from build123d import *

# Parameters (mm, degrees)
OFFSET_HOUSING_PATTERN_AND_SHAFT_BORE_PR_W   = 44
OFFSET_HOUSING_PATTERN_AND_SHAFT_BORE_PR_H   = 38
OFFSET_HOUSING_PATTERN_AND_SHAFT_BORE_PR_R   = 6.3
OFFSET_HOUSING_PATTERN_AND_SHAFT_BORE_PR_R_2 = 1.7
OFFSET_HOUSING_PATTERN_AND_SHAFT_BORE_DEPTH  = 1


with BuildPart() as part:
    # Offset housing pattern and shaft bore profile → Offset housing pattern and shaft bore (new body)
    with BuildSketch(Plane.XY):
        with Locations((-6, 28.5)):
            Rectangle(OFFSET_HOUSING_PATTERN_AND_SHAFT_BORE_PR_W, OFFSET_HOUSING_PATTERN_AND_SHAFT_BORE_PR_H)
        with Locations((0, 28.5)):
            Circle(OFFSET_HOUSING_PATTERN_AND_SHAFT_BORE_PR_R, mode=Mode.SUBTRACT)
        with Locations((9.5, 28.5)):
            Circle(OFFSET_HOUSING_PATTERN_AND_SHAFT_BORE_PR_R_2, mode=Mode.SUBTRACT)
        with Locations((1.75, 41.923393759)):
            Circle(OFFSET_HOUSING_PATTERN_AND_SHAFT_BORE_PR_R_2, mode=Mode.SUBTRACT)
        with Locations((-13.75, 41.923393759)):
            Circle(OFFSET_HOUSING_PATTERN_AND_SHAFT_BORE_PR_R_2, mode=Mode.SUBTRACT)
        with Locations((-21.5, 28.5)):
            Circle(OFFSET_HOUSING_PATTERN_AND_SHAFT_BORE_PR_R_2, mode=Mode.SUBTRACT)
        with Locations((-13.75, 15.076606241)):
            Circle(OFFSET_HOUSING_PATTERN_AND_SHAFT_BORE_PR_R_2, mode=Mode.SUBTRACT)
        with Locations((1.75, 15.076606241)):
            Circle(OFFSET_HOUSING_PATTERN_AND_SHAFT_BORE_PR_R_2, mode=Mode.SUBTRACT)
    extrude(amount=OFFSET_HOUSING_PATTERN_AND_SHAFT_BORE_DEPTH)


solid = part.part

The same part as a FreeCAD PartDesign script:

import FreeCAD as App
import Part
import Sketcher


def add_polygon(sketch, points):
    """Adds a closed chain of lines whose ends are joined by coincident constraints."""
    first, n = sketch.GeometryCount, len(points)
    for a, b in zip(points, points[1:] + points[:1]):
        sketch.addGeometry(Part.LineSegment(App.Vector(*a, 0), App.Vector(*b, 0)), False)
    for i in range(n):
        sketch.addConstraint(Sketcher.Constraint("Coincident", first + i, 2, first + (i + 1) % n, 1))

doc = App.newDocument("Part")
body = doc.addObject("PartDesign::Body", "Body")

sketch1 = body.newObject("Sketcher::SketchObject", "Sketch")
sketch1.AttachmentSupport = (doc.getObject("XY_Plane"), [""])
sketch1.MapMode = "FlatFace"
add_polygon(sketch1, [(-28, 47.5), (-28, 9.5), (16, 9.5), (16, 47.5)])
sketch1.addGeometry(Part.Circle(App.Vector(-13.8, 15.1, 0), App.Vector(0, 0, 1), 1.7), False)
sketch1.addGeometry(Part.Circle(App.Vector(1.8, 15.1, 0), App.Vector(0, 0, 1), 1.7), False)
sketch1.addGeometry(Part.Circle(App.Vector(-21.5, 28.5, 0), App.Vector(0, 0, 1), 1.7), False)
sketch1.addGeometry(Part.Circle(App.Vector(-13.8, 41.9, 0), App.Vector(0, 0, 1), 1.7), False)
sketch1.addGeometry(Part.Circle(App.Vector(0, 28.5, 0), App.Vector(0, 0, 1), 6.3), False)
sketch1.addGeometry(Part.Circle(App.Vector(9.5, 28.5, 0), App.Vector(0, 0, 1), 1.7), False)
sketch1.addGeometry(Part.Circle(App.Vector(1.8, 41.9, 0), App.Vector(0, 0, 1), 1.7), False)
sketch1.addConstraint([
    Sketcher.Constraint("Vertical", 0),
    Sketcher.Constraint("Horizontal", 1),
    Sketcher.Constraint("Vertical", 2),
    Sketcher.Constraint("Horizontal", 3),
    Sketcher.Constraint("Equal", 4, 5),
    Sketcher.Constraint("Equal", 5, 6),
    Sketcher.Constraint("Equal", 6, 7),
    Sketcher.Constraint("Equal", 7, 9),
    Sketcher.Constraint("Equal", 9, 10),
    Sketcher.Constraint("PointOnObject", 8, 3, -2),
    Sketcher.Constraint("Horizontal", 4, 3, 5, 3),
    Sketcher.Constraint("Horizontal", 6, 3, 8, 3),
    Sketcher.Constraint("Horizontal", 8, 3, 9, 3),
    Sketcher.Constraint("Horizontal", 7, 3, 10, 3),
    Sketcher.Constraint("Vertical", 4, 3, 7, 3),
    Sketcher.Constraint("Vertical", 5, 3, 10, 3),
    Sketcher.Constraint("Diameter", 4, 3.4),
    Sketcher.Constraint("Diameter", 8, 12.6),
    Sketcher.Constraint("DistanceX", 1, 1, 1, 2, 44.0),
    Sketcher.Constraint("DistanceY", 0, 2, 0, 1, 38.0),
    Sketcher.Constraint("DistanceX", 0, 2, -1, 1, 28.0),
    Sketcher.Constraint("DistanceX", 6, 3, 9, 3, 31.0),
    Sketcher.Constraint("DistanceY", 0, 2, 6, 3, 19.0),
    Sketcher.Constraint("DistanceX", 6, 3, -1, 1, 21.5),
    Sketcher.Constraint("DistanceY", -1, 1, 6, 3, 28.5),
    Sketcher.Constraint("DistanceX", 4, 3, 5, 3, 15.5),
    Sketcher.Constraint("DistanceX", 4, 3, -1, 1, 13.75),
    Sketcher.Constraint("DistanceY", -1, 1, 4, 3, 15.076606),
    Sketcher.Constraint("DistanceY", -1, 1, 7, 3, 41.923394),
])
pad1 = body.newObject("PartDesign::Pad", "Pad")
pad1.Profile = sketch1
pad1.Length = 1

doc.recompute()
